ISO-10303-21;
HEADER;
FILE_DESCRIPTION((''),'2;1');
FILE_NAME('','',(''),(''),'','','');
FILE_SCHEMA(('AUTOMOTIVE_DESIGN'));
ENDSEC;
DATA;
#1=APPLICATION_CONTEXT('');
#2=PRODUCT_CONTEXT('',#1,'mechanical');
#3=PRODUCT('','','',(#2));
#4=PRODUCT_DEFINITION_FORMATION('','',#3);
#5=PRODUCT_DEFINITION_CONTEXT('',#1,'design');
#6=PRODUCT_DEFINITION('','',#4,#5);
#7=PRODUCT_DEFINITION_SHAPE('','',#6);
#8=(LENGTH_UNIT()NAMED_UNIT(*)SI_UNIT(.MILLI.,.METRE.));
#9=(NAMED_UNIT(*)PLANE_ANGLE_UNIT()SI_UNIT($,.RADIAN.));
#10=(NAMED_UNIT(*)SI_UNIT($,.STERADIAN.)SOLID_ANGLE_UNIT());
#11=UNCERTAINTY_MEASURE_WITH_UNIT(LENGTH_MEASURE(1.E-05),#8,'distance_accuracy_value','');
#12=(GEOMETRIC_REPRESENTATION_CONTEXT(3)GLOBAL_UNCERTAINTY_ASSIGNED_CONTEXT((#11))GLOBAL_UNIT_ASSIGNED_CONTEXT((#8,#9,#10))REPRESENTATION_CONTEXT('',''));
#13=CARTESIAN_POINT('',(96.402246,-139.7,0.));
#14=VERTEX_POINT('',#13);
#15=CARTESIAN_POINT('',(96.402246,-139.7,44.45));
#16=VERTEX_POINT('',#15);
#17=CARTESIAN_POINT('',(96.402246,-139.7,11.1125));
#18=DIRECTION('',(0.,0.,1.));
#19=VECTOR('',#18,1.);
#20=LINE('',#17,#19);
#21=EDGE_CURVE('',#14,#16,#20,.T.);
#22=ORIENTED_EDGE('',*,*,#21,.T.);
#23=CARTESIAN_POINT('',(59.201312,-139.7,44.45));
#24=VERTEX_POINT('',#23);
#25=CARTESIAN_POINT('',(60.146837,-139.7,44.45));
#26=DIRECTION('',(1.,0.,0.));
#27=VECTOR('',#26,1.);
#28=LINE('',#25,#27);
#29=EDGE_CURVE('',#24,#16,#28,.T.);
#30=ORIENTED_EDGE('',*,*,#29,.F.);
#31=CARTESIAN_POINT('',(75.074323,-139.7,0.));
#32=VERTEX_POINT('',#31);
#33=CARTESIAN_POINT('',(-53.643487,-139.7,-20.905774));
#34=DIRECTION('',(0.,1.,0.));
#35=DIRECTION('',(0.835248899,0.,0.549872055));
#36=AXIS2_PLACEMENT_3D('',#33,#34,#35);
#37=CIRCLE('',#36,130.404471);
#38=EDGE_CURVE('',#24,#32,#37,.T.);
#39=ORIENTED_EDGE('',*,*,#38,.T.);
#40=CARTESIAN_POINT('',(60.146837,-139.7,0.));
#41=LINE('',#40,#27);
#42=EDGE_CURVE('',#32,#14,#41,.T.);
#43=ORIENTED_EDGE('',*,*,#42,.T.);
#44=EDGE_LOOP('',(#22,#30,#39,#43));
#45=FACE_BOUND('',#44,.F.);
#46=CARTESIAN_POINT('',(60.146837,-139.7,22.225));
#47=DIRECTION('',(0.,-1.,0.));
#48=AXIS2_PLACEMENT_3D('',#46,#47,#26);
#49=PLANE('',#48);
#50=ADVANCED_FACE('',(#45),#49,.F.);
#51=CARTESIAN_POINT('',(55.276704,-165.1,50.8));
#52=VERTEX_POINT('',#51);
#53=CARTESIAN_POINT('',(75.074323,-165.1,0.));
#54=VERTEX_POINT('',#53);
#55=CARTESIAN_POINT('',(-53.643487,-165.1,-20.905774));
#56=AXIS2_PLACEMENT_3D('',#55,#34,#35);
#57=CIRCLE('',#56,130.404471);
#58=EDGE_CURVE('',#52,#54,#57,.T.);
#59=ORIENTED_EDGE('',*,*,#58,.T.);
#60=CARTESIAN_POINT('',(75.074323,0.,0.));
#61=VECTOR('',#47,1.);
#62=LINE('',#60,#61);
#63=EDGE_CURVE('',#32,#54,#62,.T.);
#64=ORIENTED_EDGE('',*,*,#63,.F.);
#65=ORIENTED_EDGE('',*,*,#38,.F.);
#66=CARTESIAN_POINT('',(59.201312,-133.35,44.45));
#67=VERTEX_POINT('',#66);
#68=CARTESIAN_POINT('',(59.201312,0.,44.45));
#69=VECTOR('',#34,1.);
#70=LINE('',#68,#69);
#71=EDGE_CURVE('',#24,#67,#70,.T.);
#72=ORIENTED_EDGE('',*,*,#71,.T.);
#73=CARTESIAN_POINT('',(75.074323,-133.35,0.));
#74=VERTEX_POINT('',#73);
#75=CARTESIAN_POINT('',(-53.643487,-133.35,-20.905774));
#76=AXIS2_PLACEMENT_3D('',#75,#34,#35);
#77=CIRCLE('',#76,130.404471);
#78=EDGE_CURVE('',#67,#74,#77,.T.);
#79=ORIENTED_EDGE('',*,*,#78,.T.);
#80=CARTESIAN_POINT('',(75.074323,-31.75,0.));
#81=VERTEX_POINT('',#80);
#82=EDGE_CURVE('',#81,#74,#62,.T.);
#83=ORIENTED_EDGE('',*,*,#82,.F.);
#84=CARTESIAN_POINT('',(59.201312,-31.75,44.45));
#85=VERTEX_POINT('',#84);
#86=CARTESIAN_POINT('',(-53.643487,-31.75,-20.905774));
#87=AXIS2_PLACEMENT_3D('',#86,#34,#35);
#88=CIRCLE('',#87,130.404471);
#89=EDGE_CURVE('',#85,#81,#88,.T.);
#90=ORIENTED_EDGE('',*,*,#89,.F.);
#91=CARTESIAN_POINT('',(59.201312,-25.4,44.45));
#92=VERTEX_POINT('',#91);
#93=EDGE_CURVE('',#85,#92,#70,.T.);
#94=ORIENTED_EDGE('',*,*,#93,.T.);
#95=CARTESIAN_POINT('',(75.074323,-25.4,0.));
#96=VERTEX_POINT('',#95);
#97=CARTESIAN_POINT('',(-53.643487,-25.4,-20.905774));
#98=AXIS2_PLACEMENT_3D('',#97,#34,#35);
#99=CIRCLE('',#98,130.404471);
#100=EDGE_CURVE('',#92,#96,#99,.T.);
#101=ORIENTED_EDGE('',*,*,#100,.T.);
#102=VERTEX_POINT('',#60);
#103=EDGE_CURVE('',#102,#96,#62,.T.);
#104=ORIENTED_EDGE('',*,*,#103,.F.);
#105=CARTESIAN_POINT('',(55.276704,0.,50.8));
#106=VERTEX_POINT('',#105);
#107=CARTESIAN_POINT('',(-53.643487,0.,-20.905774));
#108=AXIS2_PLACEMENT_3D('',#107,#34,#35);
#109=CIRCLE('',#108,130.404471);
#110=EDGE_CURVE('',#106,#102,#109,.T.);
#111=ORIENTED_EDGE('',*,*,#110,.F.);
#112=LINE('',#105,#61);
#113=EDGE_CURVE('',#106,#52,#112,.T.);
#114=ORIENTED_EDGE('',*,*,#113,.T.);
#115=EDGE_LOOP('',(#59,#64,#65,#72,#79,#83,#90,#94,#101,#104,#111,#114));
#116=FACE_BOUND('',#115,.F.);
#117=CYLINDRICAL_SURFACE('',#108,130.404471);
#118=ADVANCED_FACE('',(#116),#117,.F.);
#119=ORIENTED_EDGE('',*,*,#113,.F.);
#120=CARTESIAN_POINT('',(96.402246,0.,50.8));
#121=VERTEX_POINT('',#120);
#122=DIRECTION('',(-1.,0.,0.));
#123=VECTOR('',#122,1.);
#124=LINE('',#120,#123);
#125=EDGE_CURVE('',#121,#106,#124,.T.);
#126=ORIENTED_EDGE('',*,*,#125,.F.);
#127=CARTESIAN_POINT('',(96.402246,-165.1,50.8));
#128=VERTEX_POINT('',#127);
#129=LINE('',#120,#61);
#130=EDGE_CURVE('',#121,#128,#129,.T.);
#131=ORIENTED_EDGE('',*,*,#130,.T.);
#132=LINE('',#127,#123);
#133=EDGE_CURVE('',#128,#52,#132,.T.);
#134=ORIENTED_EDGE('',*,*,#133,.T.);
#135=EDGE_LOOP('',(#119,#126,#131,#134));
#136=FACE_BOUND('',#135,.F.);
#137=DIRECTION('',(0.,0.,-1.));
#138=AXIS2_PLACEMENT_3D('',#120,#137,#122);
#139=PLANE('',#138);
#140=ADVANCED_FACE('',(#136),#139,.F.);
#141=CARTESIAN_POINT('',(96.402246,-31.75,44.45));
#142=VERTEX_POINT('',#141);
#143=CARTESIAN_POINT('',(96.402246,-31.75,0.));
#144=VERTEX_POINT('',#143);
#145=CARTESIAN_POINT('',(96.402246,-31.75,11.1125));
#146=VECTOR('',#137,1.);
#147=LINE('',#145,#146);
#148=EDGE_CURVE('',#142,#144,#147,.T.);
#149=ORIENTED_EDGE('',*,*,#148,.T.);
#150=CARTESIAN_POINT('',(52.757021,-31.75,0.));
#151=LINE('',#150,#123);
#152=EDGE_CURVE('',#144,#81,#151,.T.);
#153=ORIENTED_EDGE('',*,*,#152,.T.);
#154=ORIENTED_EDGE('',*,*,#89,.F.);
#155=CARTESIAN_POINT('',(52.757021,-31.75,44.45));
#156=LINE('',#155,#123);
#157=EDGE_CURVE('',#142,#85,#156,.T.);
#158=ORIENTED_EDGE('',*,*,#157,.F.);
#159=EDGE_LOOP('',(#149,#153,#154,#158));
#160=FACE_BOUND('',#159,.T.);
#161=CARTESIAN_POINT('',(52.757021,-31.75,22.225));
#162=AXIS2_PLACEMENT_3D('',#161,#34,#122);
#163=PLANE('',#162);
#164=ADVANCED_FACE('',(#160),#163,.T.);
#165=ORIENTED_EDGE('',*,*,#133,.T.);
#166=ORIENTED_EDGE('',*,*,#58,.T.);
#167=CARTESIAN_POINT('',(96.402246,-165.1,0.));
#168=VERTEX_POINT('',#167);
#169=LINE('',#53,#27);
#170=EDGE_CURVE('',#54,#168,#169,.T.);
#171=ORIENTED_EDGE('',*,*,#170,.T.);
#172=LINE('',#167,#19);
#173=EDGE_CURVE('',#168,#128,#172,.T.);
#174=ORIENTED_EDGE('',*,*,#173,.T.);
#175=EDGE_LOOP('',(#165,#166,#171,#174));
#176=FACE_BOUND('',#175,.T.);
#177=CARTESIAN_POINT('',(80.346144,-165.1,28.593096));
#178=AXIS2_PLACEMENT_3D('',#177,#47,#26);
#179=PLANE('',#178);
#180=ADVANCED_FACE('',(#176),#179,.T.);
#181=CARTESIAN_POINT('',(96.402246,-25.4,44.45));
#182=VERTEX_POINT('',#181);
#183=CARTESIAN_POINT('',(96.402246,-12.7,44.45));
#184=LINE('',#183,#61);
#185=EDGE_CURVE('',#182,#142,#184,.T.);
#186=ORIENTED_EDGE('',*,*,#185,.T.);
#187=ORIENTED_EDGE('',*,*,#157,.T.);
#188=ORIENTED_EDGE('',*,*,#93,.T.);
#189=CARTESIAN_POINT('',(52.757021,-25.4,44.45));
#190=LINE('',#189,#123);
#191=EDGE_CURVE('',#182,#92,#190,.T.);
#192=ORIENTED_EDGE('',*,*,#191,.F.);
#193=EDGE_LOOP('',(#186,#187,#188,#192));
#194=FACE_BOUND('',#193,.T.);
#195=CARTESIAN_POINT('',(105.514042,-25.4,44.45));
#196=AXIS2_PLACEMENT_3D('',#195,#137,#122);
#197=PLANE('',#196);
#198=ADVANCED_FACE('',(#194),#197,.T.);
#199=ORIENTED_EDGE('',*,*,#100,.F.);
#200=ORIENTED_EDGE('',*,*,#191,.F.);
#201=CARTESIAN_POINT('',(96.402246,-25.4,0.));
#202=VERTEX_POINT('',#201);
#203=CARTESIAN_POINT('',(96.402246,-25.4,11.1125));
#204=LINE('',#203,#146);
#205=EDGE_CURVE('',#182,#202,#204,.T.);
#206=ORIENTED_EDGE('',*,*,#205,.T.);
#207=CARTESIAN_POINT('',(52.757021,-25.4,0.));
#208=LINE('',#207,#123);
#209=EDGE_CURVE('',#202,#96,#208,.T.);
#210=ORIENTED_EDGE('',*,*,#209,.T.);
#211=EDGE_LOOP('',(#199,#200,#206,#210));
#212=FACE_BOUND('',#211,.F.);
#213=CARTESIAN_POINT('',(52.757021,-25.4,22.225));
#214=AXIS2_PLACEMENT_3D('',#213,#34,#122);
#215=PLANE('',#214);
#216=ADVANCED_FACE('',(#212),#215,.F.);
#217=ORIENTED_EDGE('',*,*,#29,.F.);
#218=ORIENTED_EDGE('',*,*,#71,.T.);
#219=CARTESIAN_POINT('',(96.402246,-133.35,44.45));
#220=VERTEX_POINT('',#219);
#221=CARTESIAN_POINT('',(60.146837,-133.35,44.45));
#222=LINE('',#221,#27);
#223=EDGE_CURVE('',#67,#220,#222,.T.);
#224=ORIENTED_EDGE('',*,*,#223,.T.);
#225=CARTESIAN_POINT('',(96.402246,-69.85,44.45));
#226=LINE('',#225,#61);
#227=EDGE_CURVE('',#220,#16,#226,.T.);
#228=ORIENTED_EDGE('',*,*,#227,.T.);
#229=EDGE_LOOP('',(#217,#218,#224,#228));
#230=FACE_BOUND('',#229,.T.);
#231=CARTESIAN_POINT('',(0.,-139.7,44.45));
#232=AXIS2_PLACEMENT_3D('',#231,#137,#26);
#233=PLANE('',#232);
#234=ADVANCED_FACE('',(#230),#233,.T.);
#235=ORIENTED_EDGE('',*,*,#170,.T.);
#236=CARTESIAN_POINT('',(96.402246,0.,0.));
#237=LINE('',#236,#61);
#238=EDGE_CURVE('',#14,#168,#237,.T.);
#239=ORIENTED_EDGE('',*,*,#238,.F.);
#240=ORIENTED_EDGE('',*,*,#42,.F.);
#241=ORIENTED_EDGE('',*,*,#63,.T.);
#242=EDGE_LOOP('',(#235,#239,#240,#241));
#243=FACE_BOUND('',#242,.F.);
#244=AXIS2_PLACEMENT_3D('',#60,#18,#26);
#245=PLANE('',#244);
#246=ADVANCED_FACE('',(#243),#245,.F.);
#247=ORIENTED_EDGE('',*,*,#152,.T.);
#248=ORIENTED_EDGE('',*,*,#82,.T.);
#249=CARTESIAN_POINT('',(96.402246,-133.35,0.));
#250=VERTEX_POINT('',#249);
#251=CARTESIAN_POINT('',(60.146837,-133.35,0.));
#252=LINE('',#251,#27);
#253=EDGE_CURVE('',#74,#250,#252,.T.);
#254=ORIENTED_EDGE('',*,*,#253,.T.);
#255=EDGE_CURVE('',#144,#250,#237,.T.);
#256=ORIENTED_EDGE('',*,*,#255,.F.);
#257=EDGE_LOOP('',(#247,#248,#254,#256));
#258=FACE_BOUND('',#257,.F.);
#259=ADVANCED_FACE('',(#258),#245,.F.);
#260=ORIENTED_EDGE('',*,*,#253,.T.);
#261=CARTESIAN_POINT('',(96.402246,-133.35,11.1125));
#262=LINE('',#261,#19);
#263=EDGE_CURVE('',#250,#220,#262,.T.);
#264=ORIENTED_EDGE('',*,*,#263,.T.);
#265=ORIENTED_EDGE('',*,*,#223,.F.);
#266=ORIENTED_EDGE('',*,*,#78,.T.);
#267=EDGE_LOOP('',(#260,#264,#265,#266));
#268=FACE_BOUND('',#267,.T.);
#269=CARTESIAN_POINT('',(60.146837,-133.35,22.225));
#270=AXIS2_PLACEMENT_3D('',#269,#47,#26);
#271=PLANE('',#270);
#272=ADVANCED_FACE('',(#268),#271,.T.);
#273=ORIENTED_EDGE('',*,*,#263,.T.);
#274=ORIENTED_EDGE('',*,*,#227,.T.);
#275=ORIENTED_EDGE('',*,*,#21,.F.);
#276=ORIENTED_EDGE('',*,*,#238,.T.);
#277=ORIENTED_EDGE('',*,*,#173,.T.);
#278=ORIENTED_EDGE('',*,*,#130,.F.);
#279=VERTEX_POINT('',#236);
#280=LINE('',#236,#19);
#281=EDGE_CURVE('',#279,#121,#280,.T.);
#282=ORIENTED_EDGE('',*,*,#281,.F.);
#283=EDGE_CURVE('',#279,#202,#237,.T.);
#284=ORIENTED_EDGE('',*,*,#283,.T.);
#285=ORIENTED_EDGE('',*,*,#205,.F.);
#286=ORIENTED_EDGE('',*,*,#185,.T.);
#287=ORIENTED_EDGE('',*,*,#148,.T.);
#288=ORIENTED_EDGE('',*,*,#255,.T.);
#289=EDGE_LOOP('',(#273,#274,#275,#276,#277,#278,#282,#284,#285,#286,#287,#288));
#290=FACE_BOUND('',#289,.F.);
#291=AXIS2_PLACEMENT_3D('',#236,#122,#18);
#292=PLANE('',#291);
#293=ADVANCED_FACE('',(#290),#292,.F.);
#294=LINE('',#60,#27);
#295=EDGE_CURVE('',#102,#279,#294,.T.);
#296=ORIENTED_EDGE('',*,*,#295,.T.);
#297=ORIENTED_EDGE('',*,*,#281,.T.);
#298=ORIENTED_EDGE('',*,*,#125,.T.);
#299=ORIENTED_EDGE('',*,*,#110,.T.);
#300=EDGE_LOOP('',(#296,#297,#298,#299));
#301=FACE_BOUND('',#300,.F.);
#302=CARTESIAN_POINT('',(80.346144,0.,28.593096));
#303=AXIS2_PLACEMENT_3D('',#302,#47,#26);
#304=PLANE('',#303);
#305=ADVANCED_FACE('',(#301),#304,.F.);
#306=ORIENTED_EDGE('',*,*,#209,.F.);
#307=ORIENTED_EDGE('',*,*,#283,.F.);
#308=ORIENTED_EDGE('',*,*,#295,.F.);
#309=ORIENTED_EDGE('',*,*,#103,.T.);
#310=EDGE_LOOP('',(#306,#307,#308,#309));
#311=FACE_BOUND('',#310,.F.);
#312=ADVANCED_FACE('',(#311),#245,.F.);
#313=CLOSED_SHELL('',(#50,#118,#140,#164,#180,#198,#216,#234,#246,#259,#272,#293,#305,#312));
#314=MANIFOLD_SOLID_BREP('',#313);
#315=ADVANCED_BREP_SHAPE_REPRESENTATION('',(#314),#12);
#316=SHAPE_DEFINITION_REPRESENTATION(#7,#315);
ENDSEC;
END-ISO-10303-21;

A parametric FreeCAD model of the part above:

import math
import FreeCAD as App
import Part
import Sketcher
from FreeCAD import Vector
Q = App.Units.Quantity

doc = App.newDocument("Part")
params = doc.addObject("Spreadsheet::Sheet", "Params")
for row, (alias, value) in enumerate([
    ("sketch1_height", "2 in"),
    ("pad1_length", "6.5 in"),
    ("sketch2_height", "1.75 in"),
    ("pocket1_length", "0.25 in"),
    ("sketch3_height", "1.75 in"),
    ("pocket2_length", "0.25 in"),
], start=1):
    params.set(f"A{row}", alias)
    params.set(f"B{row}", "=" + value)
    params.setAlias(f"B{row}", alias)

body = doc.addObject("PartDesign::Body", "Body")

# Sketch on XZ plane
sketch1 = body.newObject("Sketcher::SketchObject", "Sketch")
sketch1.AttachmentSupport = (doc.getObject("XZ_Plane"), [""])
sketch1.MapMode = "FlatFace"
sketch1.addGeometry([
    Part.ArcOfCircle(Part.Circle(Vector(-54, -21, 0), Vector(0, 0, 1), 130), math.radians(9), math.radians(33)),
    Part.LineSegment(Vector(75, 0, 0), Vector(96, 0, 0)),
    Part.LineSegment(Vector(96, 0, 0), Vector(96, 51, 0)),
    Part.LineSegment(Vector(96, 51, 0), Vector(55, 51, 0)),
], False)
sketch1.addConstraint([
    Sketcher.Constraint("Coincident", 0, 1, 1, 1),
    Sketcher.Constraint("Coincident", 1, 2, 2, 1),
    Sketcher.Constraint("Coincident", 2, 2, 3, 1),
    Sketcher.Constraint("Coincident", 3, 2, 0, 2),
    Sketcher.Constraint("Horizontal", 1),
    Sketcher.Constraint("Vertical", 2),
    Sketcher.Constraint("Horizontal", 3),
    Sketcher.Constraint("PointOnObject", 0, 1, -1),
    Sketcher.Constraint("DistanceY", 2, 1, 2, 2, Q("2 in")),
    Sketcher.Constraint("Radius", 0, 130.404471),
    Sketcher.Constraint("DistanceX", 1, 1, 1, 2, 21.327924),
    Sketcher.Constraint("DistanceX", 3, 2, 3, 1, 41.125543),
    Sketcher.Constraint("DistanceX", 0, 3, -1, 1, 53.643487),
])
sketch1.setExpression("Constraints[8]", "Params.sketch1_height")
pad1 = body.newObject("PartDesign::Pad", "Pad")
pad1.Profile = sketch1
pad1.setExpression("Length", "Params.pad1_length")

# Sketch on XZ plane
sketch2 = body.newObject("Sketcher::SketchObject", "Sketch001")
sketch2.AttachmentSupport = (doc.getObject("XZ_Plane"), [""])
sketch2.MapMode = "FlatFace"
sketch2.AttachmentOffset = App.Placement(Vector(0, 0, 5.5 * 25.4), App.Rotation())
sketch2.addGeometry([
    Part.LineSegment(Vector(0, 44, 0), Vector(0, 0, 0)),
    Part.LineSegment(Vector(0, 0, 0), Vector(120, 0, 0)),
    Part.LineSegment(Vector(120, 0, 0), Vector(120, 44, 0)),
    Part.LineSegment(Vector(120, 44, 0), Vector(0, 44, 0)),
], False)
sketch2.addConstraint([
    Sketcher.Constraint("Coincident", 0, 2, 1, 1),
    Sketcher.Constraint("Coincident", 1, 2, 2, 1),
    Sketcher.Constraint("Coincident", 2, 2, 3, 1),
    Sketcher.Constraint("Coincident", 3, 2, 0, 1),
    Sketcher.Constraint("Vertical", 0),
    Sketcher.Constraint("Horizontal", 1),
    Sketcher.Constraint("Vertical", 2),
    Sketcher.Constraint("Horizontal", 3),
    Sketcher.Constraint("Coincident", 0, 2, -1, 1),
    Sketcher.Constraint("DistanceY", 0, 2, 0, 1, Q("1.75 in")),
    Sketcher.Constraint("DistanceX", 1, 1, 1, 2, 120.293673),
])
sketch2.setExpression("Constraints[9]", "Params.sketch2_height")
pocket1 = body.newObject("PartDesign::Pocket", "Pocket")
pocket1.Profile = sketch2
pocket1.setExpression("Length", "Params.pocket1_length")

# Sketch on XZ plane
sketch3 = body.newObject("Sketcher::SketchObject", "Sketch002")
sketch3.AttachmentSupport = (doc.getObject("XZ_Plane"), [""])
sketch3.MapMode = "FlatFace"
sketch3.AttachmentOffset = App.Placement(Vector(0, 0, 1 * 25.4), App.Rotation())
sketch3.addGeometry([
    Part.LineSegment(Vector(106, 44, 0), Vector(106, 0, 0)),
    Part.LineSegment(Vector(106, 0, 0), Vector(0, 0, 0)),
    Part.LineSegment(Vector(0, 0, 0), Vector(0, 44, 0)),
    Part.LineSegment(Vector(0, 44, 0), Vector(106, 44, 0)),
], False)
sketch3.addConstraint([
    Sketcher.Constraint("Coincident", 0, 2, 1, 1),
    Sketcher.Constraint("Coincident", 1, 2, 2, 1),
    Sketcher.Constraint("Coincident", 2, 2, 3, 1),
    Sketcher.Constraint("Coincident", 3, 2, 0, 1),
    Sketcher.Constraint("Vertical", 0),
    Sketcher.Constraint("Horizontal", 1),
    Sketcher.Constraint("Vertical", 2),
    Sketcher.Constraint("Horizontal", 3),
    Sketcher.Constraint("Coincident", 1, 2, -1, 1),
    Sketcher.Constraint("DistanceY", 0, 2, 0, 1, Q("1.75 in")),
    Sketcher.Constraint("DistanceX", 1, 2, 1, 1, 105.514042),
])
sketch3.setExpression("Constraints[9]", "Params.sketch3_height")
pocket2 = body.newObject("PartDesign::Pocket", "Pocket001")
pocket2.Profile = sketch3
pocket2.setExpression("Length", "Params.pocket2_length")
pocket2.Reversed = True

doc.recompute()
